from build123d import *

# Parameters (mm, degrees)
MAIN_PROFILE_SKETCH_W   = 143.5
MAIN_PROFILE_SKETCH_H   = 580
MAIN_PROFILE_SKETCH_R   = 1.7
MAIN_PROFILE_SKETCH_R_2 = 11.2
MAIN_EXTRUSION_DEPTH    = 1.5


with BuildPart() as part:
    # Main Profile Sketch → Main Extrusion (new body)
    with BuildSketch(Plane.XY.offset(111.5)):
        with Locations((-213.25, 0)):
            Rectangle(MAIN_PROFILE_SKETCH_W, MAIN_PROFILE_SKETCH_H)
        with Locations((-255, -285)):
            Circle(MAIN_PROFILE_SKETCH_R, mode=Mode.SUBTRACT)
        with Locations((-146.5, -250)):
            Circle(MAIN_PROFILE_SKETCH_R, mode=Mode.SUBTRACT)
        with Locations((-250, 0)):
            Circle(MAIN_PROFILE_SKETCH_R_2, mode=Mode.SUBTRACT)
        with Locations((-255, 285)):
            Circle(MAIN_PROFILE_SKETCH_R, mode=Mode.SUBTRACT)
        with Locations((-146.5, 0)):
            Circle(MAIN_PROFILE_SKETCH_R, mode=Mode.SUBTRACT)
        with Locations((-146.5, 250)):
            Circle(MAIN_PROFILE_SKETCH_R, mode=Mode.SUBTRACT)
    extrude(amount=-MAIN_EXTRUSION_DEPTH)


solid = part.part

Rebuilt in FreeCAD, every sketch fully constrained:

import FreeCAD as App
import Part
import Sketcher

V = App.Vector

doc = App.newDocument("Part")
body = doc.addObject("PartDesign::Body", "Body")

# Sketch on XY plane
sketch1 = body.newObject("Sketcher::SketchObject", "Sketch")
sketch1.AttachmentSupport = (doc.getObject("XY_Plane"), [""])
sketch1.MapMode = "FlatFace"
sketch1.AttachmentOffset = App.Placement(V(0, 0, 111.5), App.Rotation())
sketch1.addGeometry(Part.LineSegment(V(-285, 290, 0), V(-285, -290, 0)), False)
sketch1.addGeometry(Part.LineSegment(V(-285, -290, 0), V(-141.5, -290, 0)), False)
sketch1.addGeometry(Part.LineSegment(V(-141.5, -290, 0), V(-141.5, 290, 0)), False)
sketch1.addGeometry(Part.LineSegment(V(-141.5, 290, 0), V(-285, 290, 0)), False)
sketch1.addGeometry(Part.Circle(V(-255, -285, 0), V(0, 0, 1), 1.7), False)
sketch1.addGeometry(Part.Circle(V(-146.5, -250, 0), V(0, 0, 1), 1.7), False)
sketch1.addGeometry(Part.Circle(V(-250, 0, 0), V(0, 0, 1), 11.2), False)
sketch1.addGeometry(Part.Circle(V(-255, 285, 0), V(0, 0, 1), 1.7), False)
sketch1.addGeometry(Part.Circle(V(-146.5, 0, 0), V(0, 0, 1), 1.7), False)
sketch1.addGeometry(Part.Circle(V(-146.5, 250, 0), V(0, 0, 1), 1.7), False)
sketch1.addConstraint(Sketcher.Constraint("Coincident", 0, 2, 1, 1))
sketch1.addConstraint(Sketcher.Constraint("Coincident", 1, 2, 2, 1))
sketch1.addConstraint(Sketcher.Constraint("Coincident", 2, 2, 3, 1))
sketch1.addConstraint(Sketcher.Constraint("Coincident", 3, 2, 0, 1))
sketch1.addConstraint(Sketcher.Constraint("Vertical", 0))
sketch1.addConstraint(Sketcher.Constraint("Horizontal", 1))
sketch1.addConstraint(Sketcher.Constraint("Vertical", 2))
sketch1.addConstraint(Sketcher.Constraint("Horizontal", 3))
sketch1.addConstraint(Sketcher.Constraint("Equal", 4, 5))
sketch1.addConstraint(Sketcher.Constraint("Equal", 5, 7))
sketch1.addConstraint(Sketcher.Constraint("Equal", 7, 8))
sketch1.addConstraint(Sketcher.Constraint("Equal", 8, 9))
sketch1.addConstraint(Sketcher.Constraint("Symmetric", 4, 3, 7, 3, -1))
sketch1.addConstraint(Sketcher.Constraint("Symmetric", 5, 3, 9, 3, -1))
sketch1.addConstraint(Sketcher.Constraint("PointOnObject", 6, 3, -1))
sketch1.addConstraint(Sketcher.Constraint("PointOnObject", 8, 3, -1))
sketch1.addConstraint(Sketcher.Constraint("Vertical", 5, 3, 8, 3))
sketch1.addConstraint(Sketcher.Constraint("Diameter", 4, 3.4))
sketch1.addConstraint(Sketcher.Constraint("Diameter", 6, 22.4))
sketch1.addConstraint(Sketcher.Constraint("DistanceY", 0, 2, 0, 1, 580.0))
sketch1.addConstraint(Sketcher.Constraint("DistanceX", 1, 1, 1, 2, 143.5))
sketch1.addConstraint(Sketcher.Constraint("DistanceX", 4, 3, -1, 1, 255.0))
sketch1.addConstraint(Sketcher.Constraint("DistanceY", 4, 3, -1, 1, 285.0))
sketch1.addConstraint(Sketcher.Constraint("DistanceY", 5, 3, -1, 1, 250.0))
sketch1.addConstraint(Sketcher.Constraint("DistanceX", 6, 3, -1, 1, 250.0))
sketch1.addConstraint(Sketcher.Constraint("DistanceX", 0, 2, -1, 1, 285.0))
sketch1.addConstraint(Sketcher.Constraint("DistanceY", 0, 2, -1, 1, 290.0))
sketch1.addConstraint(Sketcher.Constraint("DistanceX", 5, 3, 1, 2, 5.0))
pad1 = body.newObject("PartDesign::Pad", "Pad")
pad1.Profile = sketch1
pad1.Length = 1.5
pad1.Reversed = True

doc.recompute()
